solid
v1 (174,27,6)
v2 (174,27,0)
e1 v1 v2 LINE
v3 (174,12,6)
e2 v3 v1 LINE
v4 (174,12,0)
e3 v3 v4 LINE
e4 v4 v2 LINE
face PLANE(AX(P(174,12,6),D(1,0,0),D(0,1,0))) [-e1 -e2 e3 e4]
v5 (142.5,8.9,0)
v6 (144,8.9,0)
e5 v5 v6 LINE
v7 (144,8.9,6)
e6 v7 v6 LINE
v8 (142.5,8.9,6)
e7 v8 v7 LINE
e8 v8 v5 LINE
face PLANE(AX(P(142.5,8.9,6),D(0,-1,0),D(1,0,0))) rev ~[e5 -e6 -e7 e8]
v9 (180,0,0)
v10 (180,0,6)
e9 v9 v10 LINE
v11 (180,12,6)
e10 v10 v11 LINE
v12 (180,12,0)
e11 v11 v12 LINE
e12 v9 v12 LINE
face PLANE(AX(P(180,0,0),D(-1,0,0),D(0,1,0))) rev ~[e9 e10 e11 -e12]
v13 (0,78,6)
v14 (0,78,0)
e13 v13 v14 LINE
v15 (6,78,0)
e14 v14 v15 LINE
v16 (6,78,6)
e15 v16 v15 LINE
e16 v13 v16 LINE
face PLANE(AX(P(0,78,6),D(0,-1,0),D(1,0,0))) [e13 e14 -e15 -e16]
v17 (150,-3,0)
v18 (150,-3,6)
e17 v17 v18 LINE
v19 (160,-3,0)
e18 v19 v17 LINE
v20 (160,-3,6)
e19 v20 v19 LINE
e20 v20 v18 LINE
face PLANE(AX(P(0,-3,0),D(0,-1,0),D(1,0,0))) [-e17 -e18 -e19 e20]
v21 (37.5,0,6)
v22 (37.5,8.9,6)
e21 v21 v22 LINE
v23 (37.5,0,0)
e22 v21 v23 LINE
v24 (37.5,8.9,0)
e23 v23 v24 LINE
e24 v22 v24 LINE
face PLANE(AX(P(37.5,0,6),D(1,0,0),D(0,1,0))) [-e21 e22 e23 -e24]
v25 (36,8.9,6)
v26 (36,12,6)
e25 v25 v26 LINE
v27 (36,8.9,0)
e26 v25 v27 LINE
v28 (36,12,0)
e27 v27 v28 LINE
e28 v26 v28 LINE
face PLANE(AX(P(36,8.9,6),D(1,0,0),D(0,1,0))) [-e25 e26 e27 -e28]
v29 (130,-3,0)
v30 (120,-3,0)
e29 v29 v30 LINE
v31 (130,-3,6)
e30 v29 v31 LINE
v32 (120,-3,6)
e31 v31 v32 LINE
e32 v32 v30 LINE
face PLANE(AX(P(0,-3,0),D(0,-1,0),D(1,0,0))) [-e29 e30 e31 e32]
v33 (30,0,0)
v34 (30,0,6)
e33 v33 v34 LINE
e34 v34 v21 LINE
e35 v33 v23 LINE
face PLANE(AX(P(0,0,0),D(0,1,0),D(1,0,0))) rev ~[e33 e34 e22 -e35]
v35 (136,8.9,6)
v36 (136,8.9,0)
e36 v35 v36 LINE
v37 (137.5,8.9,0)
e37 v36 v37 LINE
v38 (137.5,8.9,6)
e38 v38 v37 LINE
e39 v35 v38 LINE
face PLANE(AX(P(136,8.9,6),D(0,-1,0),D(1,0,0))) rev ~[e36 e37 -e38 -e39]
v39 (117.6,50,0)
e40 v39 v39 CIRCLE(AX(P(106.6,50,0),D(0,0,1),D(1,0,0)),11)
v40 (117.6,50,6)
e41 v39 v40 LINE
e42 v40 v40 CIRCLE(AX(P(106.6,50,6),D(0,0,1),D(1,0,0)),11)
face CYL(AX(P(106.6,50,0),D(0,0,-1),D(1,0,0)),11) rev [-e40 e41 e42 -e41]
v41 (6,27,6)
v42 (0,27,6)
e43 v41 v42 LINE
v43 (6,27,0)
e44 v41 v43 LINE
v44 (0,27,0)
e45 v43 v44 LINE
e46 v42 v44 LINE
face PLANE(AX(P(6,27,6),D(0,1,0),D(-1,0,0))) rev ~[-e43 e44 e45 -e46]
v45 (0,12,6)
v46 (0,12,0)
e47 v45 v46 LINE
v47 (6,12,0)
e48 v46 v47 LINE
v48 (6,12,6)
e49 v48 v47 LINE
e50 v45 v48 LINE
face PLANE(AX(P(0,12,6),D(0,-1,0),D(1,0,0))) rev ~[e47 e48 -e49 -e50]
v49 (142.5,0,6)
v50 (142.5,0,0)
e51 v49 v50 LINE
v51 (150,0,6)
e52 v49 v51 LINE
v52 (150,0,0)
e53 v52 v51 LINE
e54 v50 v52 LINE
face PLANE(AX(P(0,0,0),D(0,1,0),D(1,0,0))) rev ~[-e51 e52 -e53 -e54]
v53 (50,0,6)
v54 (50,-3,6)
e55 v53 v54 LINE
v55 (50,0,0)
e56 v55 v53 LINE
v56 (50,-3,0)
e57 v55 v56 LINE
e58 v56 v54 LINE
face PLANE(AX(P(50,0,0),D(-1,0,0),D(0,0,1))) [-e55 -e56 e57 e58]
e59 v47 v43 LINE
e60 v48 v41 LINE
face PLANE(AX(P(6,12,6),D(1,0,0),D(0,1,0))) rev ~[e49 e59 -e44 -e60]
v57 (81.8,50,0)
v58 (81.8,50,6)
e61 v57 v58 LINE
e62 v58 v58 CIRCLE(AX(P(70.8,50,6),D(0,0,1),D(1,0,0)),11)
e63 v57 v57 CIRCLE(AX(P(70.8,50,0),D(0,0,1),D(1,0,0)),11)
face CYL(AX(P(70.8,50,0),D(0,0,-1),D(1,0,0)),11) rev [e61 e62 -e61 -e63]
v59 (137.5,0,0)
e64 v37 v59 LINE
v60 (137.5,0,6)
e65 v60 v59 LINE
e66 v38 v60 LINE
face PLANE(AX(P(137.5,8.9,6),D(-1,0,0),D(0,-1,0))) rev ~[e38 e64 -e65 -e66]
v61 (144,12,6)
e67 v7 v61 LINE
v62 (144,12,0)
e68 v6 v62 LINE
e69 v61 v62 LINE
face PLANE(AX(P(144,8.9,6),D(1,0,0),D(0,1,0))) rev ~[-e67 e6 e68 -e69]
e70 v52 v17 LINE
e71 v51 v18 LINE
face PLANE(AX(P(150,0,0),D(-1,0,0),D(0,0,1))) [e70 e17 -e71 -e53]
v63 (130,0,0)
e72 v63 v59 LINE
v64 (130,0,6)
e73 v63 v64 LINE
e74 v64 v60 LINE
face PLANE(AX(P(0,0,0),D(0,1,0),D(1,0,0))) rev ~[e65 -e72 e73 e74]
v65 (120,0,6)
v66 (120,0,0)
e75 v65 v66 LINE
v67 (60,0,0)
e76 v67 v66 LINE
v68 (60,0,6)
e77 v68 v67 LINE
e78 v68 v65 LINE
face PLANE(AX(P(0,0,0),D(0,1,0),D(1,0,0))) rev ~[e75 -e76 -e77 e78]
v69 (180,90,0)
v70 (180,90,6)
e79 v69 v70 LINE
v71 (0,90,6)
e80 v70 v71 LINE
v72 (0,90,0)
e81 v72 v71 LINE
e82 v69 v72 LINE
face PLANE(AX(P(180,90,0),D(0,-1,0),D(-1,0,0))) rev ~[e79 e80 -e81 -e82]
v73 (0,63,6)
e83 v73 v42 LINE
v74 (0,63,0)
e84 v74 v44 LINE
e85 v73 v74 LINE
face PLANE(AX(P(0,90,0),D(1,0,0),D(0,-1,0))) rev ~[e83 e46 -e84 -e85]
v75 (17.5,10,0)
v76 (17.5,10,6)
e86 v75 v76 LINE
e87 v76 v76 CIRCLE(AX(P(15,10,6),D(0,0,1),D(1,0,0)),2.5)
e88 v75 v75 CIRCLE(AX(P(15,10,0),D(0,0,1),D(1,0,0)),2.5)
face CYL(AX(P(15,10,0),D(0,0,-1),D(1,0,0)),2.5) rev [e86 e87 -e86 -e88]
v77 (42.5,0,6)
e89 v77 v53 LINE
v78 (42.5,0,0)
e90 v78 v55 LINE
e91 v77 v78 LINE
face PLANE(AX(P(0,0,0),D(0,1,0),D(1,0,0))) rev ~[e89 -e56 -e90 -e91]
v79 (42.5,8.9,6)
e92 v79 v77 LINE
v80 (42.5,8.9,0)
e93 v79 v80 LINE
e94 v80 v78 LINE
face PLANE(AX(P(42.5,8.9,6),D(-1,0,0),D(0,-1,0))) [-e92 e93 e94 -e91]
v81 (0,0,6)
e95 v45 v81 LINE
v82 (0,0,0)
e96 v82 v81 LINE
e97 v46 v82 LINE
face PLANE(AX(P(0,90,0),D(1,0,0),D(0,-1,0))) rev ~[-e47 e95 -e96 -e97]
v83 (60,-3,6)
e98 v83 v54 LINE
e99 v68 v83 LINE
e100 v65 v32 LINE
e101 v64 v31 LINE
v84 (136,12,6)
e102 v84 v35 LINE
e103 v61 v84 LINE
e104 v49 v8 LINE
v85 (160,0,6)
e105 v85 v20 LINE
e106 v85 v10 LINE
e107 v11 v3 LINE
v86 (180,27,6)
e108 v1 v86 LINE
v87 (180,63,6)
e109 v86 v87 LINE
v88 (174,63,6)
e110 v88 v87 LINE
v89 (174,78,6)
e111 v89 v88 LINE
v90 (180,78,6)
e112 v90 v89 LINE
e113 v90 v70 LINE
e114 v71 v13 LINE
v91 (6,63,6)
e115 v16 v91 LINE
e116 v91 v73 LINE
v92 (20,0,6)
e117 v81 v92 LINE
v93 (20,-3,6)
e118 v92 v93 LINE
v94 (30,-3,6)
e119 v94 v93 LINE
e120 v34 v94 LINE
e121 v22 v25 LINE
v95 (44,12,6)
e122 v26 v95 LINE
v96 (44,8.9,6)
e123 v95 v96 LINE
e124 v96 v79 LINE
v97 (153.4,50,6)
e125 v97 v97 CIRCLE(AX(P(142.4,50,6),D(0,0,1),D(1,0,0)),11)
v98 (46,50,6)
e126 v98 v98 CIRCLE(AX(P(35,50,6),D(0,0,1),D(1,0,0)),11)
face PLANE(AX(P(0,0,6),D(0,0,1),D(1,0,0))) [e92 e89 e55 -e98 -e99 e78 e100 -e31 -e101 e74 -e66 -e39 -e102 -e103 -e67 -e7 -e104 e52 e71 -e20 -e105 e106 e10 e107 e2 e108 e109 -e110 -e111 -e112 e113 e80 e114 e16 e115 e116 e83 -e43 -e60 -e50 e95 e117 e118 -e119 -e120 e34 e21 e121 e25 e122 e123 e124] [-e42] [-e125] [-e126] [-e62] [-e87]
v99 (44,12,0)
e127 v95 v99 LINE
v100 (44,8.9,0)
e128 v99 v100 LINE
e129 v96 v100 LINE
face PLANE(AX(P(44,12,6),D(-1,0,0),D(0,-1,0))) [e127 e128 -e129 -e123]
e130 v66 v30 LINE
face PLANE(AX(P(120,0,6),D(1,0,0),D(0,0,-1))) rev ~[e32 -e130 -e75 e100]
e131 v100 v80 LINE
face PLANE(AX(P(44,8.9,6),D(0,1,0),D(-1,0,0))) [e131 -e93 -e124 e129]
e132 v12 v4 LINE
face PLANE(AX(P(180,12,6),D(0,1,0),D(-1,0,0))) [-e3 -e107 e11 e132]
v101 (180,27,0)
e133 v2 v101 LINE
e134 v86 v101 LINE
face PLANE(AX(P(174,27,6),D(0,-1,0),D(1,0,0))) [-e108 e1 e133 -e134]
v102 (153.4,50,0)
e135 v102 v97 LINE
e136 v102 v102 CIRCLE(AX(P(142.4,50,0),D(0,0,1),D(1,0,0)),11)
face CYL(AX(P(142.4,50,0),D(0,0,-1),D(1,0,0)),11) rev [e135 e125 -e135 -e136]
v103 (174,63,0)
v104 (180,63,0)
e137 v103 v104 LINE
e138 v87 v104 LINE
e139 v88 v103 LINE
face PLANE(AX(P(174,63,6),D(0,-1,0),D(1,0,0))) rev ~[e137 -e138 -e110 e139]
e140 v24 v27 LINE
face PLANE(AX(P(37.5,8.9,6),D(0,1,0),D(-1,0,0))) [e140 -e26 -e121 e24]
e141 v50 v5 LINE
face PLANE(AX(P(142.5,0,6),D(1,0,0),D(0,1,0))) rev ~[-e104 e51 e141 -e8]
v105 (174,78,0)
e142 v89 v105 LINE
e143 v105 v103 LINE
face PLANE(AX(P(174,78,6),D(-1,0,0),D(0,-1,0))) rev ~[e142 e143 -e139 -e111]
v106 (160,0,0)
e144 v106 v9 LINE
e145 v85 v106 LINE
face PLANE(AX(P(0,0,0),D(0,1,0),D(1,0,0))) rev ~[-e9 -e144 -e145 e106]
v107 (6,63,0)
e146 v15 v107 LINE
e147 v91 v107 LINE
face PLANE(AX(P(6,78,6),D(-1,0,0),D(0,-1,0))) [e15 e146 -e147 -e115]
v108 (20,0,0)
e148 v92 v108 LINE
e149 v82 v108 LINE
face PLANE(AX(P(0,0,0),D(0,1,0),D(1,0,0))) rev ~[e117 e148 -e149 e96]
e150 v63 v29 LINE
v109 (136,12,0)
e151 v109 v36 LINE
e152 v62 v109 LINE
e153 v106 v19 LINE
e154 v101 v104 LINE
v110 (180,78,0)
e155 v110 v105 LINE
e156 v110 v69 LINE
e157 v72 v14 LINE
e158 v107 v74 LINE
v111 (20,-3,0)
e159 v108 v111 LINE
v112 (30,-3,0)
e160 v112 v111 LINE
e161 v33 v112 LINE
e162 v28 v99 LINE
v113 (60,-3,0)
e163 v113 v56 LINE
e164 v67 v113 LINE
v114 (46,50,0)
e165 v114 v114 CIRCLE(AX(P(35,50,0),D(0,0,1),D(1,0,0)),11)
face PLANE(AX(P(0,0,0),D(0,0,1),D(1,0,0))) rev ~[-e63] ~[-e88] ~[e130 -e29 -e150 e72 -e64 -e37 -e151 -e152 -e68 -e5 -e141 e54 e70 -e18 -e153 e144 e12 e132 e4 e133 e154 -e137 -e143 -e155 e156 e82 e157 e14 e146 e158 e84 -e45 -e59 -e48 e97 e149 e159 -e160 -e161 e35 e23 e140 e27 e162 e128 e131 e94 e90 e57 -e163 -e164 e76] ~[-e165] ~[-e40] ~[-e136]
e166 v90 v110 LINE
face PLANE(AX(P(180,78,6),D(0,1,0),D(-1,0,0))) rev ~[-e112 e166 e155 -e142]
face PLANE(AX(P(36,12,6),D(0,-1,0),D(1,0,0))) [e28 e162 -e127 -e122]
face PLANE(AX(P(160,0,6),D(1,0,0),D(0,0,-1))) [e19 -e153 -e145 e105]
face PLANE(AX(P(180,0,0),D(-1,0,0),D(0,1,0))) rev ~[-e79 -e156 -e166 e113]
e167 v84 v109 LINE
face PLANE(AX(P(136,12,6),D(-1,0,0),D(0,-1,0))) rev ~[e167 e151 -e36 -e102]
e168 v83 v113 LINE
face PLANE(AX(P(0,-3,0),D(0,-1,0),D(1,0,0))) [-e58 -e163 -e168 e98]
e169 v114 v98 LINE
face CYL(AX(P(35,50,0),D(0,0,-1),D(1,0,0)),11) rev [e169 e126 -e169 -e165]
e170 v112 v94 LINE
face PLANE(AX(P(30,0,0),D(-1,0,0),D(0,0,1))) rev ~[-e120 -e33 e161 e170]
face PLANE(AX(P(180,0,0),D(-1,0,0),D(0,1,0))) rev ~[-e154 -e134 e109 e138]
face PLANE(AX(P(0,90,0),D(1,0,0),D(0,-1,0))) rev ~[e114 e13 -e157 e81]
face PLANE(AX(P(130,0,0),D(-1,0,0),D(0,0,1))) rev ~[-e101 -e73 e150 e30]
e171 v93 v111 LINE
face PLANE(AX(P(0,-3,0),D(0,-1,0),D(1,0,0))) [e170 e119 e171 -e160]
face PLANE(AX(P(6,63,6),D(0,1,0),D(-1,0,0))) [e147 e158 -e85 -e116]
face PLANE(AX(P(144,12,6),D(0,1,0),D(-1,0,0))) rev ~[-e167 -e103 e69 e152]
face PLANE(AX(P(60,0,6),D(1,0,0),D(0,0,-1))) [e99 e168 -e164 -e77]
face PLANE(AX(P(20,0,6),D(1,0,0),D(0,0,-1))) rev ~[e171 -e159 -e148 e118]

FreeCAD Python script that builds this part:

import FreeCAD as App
import Part
import Sketcher

V = App.Vector
Q = App.Units.Quantity


def add_polygon(sketch, points):
    """Adds a closed chain of lines whose ends are joined by coincident constraints."""
    first, n = sketch.GeometryCount, len(points)
    for a, b in zip(points, points[1:] + points[:1]):
        sketch.addGeometry(Part.LineSegment(App.Vector(*a, 0), App.Vector(*b, 0)), False)
    for i in range(n):
        sketch.addConstraint(Sketcher.Constraint("Coincident", first + i, 2, first + (i + 1) % n, 1))

doc = App.newDocument("Part")
body = doc.addObject("PartDesign::Body", "Body")

# Sketch on XY plane
sketch1 = body.newObject("Sketcher::SketchObject", "Sketch")
sketch1.AttachmentSupport = (doc.getObject("XY_Plane"), [""])
sketch1.MapMode = "FlatFace"
add_polygon(sketch1, [(0, 90), (0, 0), (180, 0), (180, 90)])  # lines 0-3
sketch1.addGeometry(Part.Circle(V(15, 10, 0), V(0, 0, 1), 2.5), False)  # 4
sketch1.addGeometry(Part.Circle(V(35, 50, 0), V(0, 0, 1), 11), False)  # 5
sketch1.addGeometry(Part.Circle(V(70.8, 50, 0), V(0, 0, 1), 11), False)  # 6
sketch1.addGeometry(Part.Circle(V(106.6, 50, 0), V(0, 0, 1), 11), False)  # 7
sketch1.addGeometry(Part.Circle(V(142.4, 50, 0), V(0, 0, 1), 11), False)  # 8
sketch1.addConstraint([
    Sketcher.Constraint("Vertical", 0),
    Sketcher.Constraint("Horizontal", 1),
    Sketcher.Constraint("Vertical", 2),
    Sketcher.Constraint("Horizontal", 3),
    Sketcher.Constraint("Coincident", 0, 2, -1, 1),
    Sketcher.Constraint("Equal", 5, 6),
    Sketcher.Constraint("Equal", 6, 7),
    Sketcher.Constraint("Equal", 7, 8),
    Sketcher.Constraint("Horizontal", 5, 3, 6, 3),
    Sketcher.Constraint("Horizontal", 6, 3, 7, 3),
    Sketcher.Constraint("Horizontal", 7, 3, 8, 3),
    Sketcher.Constraint("Diameter", 4, Q("5 mm")),
    Sketcher.Constraint("Diameter", 5, Q("22 mm")),
    Sketcher.Constraint("DistanceX", 1, 1, 1, 2, Q("180 mm")),
    Sketcher.Constraint("DistanceY", 0, 2, 0, 1, Q("90 mm")),
    Sketcher.Constraint("DistanceX", -1, 1, 4, 3, Q("15 mm")),
    Sketcher.Constraint("DistanceY", -1, 1, 4, 3, Q("10 mm")),
    Sketcher.Constraint("DistanceX", -1, 1, 5, 3, Q("35 mm")),
    Sketcher.Constraint("DistanceY", -1, 1, 5, 3, Q("50 mm")),
    Sketcher.Constraint("DistanceX", 5, 3, 6, 3, Q("35.8 mm")),
    Sketcher.Constraint("DistanceX", 6, 3, 7, 3, Q("35.8 mm")),
    Sketcher.Constraint("DistanceX", 7, 3, 8, 3, Q("35.8 mm")),
])
pad1 = body.newObject("PartDesign::Pad", "Pad")
pad1.Profile = sketch1
pad1.Length = 6

# Sketch on XY plane
sketch2 = body.newObject("Sketcher::SketchObject", "Sketch001")
sketch2.AttachmentSupport = (doc.getObject("XY_Plane"), [""])
sketch2.MapMode = "FlatFace"
sketch2.AttachmentOffset = App.Placement(V(0, 0, 6), App.Rotation())
add_polygon(sketch2, [(137.5, 8.9), (137.5, 0), (142.5, 0), (142.5, 8.9), (144, 8.9), (144, 12), (136, 12), (136, 8.9)])  # lines 0-7
add_polygon(sketch2, [(44, 12), (36, 12), (36, 8.9), (37.5, 8.9), (37.5, 0), (42.5, 0), (42.5, 8.9), (44, 8.9)])  # lines 8-15
sketch2.addConstraint([
    Sketcher.Constraint("Vertical", 0),
    Sketcher.Constraint("Horizontal", 1),
    Sketcher.Constraint("Vertical", 2),
    Sketcher.Constraint("Horizontal", 3),
    Sketcher.Constraint("Vertical", 4),
    Sketcher.Constraint("Horizontal", 5),
    Sketcher.Constraint("Vertical", 6),
    Sketcher.Constraint("Horizontal", 7),
    Sketcher.Constraint("Horizontal", 8),
    Sketcher.Constraint("Vertical", 9),
    Sketcher.Constraint("Horizontal", 10),
    Sketcher.Constraint("Vertical", 11),
    Sketcher.Constraint("Horizontal", 12),
    Sketcher.Constraint("Vertical", 13),
    Sketcher.Constraint("Horizontal", 14),
    Sketcher.Constraint("Vertical", 15),
    Sketcher.Constraint("PointOnObject", 0, 2, -1),
    Sketcher.Constraint("PointOnObject", 11, 2, -1),
    Sketcher.Constraint("Horizontal", 3, 2, 6, 2),
    Sketcher.Constraint("Horizontal", 5, 2, 8, 2),
    Sketcher.Constraint("Horizontal", 7, 2, 9, 2),
    Sketcher.Constraint("Horizontal", 10, 2, 13, 2),
    Sketcher.Constraint("Equal", 3, 7),
    Sketcher.Constraint("Equal", 5, 8),
    Sketcher.Constraint("Equal", 7, 10),
    Sketcher.Constraint("Equal", 1, 12),
    Sketcher.Constraint("DistanceX", 1, 1, 1, 2, Q("5 mm")),
    Sketcher.Constraint("DistanceX", 5, 2, 5, 1, Q("8 mm")),
    Sketcher.Constraint("DistanceY", 4, 1, 4, 2, Q("3.1 mm")),
    Sketcher.Constraint("DistanceY", -1, 1, 4, 2, Q("12 mm")),
    Sketcher.Constraint("DistanceX", -1, 1, 3, 2, Q("144 mm")),
    Sketcher.Constraint("DistanceX", -1, 1, 8, 2, Q("36 mm")),
])
pocket1 = body.newObject("PartDesign::Pocket", "Pocket")
pocket1.Profile = sketch2
pocket1.Type = "ThroughAll"

# Sketch on XZ plane
sketch3 = body.newObject("Sketcher::SketchObject", "Sketch002")
sketch3.AttachmentSupport = (doc.getObject("XZ_Plane"), [""])
sketch3.MapMode = "FlatFace"
add_polygon(sketch3, [(160, 0), (160, 6), (150, 6), (150, 0)])  # lines 0-3
add_polygon(sketch3, [(130, 0), (130, 6), (120, 6), (120, 0)])  # lines 4-7
add_polygon(sketch3, [(60, 0), (60, 6), (50, 6), (50, 0)])  # lines 8-11
add_polygon(sketch3, [(30, 0), (30, 6), (20, 6), (20, 0)])  # lines 12-15
sketch3.addConstraint([
    Sketcher.Constraint("Vertical", 0),
    Sketcher.Constraint("Horizontal", 1),
    Sketcher.Constraint("Vertical", 2),
    Sketcher.Constraint("Horizontal", 3),
    Sketcher.Constraint("Vertical", 4),
    Sketcher.Constraint("Horizontal", 5),
    Sketcher.Constraint("Vertical", 6),
    Sketcher.Constraint("Horizontal", 7),
    Sketcher.Constraint("Vertical", 8),
    Sketcher.Constraint("Horizontal", 9),
    Sketcher.Constraint("Vertical", 10),
    Sketcher.Constraint("Horizontal", 11),
    Sketcher.Constraint("Vertical", 12),
    Sketcher.Constraint("Horizontal", 13),
    Sketcher.Constraint("Vertical", 14),
    Sketcher.Constraint("Horizontal", 15),
    Sketcher.Constraint("PointOnObject", 2, 2, -1),
    Sketcher.Constraint("PointOnObject", 6, 2, -1),
    Sketcher.Constraint("PointOnObject", 10, 2, -1),
    Sketcher.Constraint("PointOnObject", 14, 2, -1),
    Sketcher.Constraint("Horizontal", 1, 2, 4, 2),
    Sketcher.Constraint("Horizontal", 5, 2, 8, 2),
    Sketcher.Constraint("Horizontal", 9, 2, 12, 2),
    Sketcher.Constraint("Equal", 3, 5),
    Sketcher.Constraint("Equal", 7, 9),
    Sketcher.Constraint("Equal", 11, 13),
    Sketcher.Constraint("DistanceX", 1, 2, 1, 1, Q("10 mm")),
    Sketcher.Constraint("DistanceX", -1, 1, 13, 2, Q("20 mm")),
    Sketcher.Constraint("DistanceX", 4, 2, 1, 2, Q("20 mm")),
    Sketcher.Constraint("DistanceX", 12, 2, 9, 2, Q("20 mm")),
    Sketcher.Constraint("DistanceY", 0, 1, 0, 2, Q("6 mm")),
    Sketcher.Constraint("DistanceX", -1, 1, 0, 2, Q("160 mm")),
])
pad2 = body.newObject("PartDesign::Pad", "Pad001")
pad2.Profile = sketch3
pad2.Length = 3

# Sketch on XY plane
sketch4 = body.newObject("Sketcher::SketchObject", "Sketch003")
sketch4.AttachmentSupport = (doc.getObject("XY_Plane"), [""])
sketch4.MapMode = "FlatFace"
sketch4.AttachmentOffset = App.Placement(V(0, 0, 6), App.Rotation())
add_polygon(sketch4, [(180, 12), (180, 27), (174, 27), (174, 12)])  # lines 0-3
add_polygon(sketch4, [(6, 27), (0, 27), (0, 12), (6, 12)])  # lines 4-7
add_polygon(sketch4, [(6, 78), (0, 78), (0, 63), (6, 63)])  # lines 8-11
add_polygon(sketch4, [(180, 63), (180, 78), (174, 78), (174, 63)])  # lines 12-15
sketch4.addConstraint([
    Sketcher.Constraint("Vertical", 0),
    Sketcher.Constraint("Horizontal", 1),
    Sketcher.Constraint("Vertical", 2),
    Sketcher.Constraint("Horizontal", 3),
    Sketcher.Constraint("Horizontal", 4),
    Sketcher.Constraint("Vertical", 5),
    Sketcher.Constraint("Horizontal", 6),
    Sketcher.Constraint("Vertical", 7),
    Sketcher.Constraint("Horizontal", 8),
    Sketcher.Constraint("Vertical", 9),
    Sketcher.Constraint("Horizontal", 10),
    Sketcher.Constraint("Vertical", 11),
    Sketcher.Constraint("Vertical", 12),
    Sketcher.Constraint("Horizontal", 13),
    Sketcher.Constraint("Vertical", 14),
    Sketcher.Constraint("Horizontal", 15),
    Sketcher.Constraint("PointOnObject", 4, 2, -2),
    Sketcher.Constraint("PointOnObject", 8, 2, -2),
    Sketcher.Constraint("Horizontal", 1, 2, 4, 2),
    Sketcher.Constraint("Horizontal", 3, 2, 5, 2),
    Sketcher.Constraint("Horizontal", 11, 2, 12, 2),
    Sketcher.Constraint("Horizontal", 10, 2, 14, 2),
    Sketcher.Constraint("Vertical", 7, 2, 10, 2),
    Sketcher.Constraint("Vertical", 3, 2, 12, 2),
    Sketcher.Constraint("Vertical", 2, 2, 13, 2),
    Sketcher.Constraint("Equal", 3, 4),
    Sketcher.Constraint("Equal", 7, 9),
    Sketcher.Constraint("DistanceX", 1, 2, 1, 1, Q("6 mm")),
    Sketcher.Constraint("DistanceY", 0, 1, 0, 2, Q("15 mm")),
    Sketcher.Constraint("DistanceY", -1, 1, 2, 2, Q("12 mm")),
    Sketcher.Constraint("DistanceX", -1, 1, 0, 2, Q("180 mm")),
    Sketcher.Constraint("DistanceY", -1, 1, 8, 2, Q("78 mm")),
])
pocket2 = body.newObject("PartDesign::Pocket", "Pocket001")
pocket2.Profile = sketch4
pocket2.Type = "ThroughAll"

doc.recompute()
